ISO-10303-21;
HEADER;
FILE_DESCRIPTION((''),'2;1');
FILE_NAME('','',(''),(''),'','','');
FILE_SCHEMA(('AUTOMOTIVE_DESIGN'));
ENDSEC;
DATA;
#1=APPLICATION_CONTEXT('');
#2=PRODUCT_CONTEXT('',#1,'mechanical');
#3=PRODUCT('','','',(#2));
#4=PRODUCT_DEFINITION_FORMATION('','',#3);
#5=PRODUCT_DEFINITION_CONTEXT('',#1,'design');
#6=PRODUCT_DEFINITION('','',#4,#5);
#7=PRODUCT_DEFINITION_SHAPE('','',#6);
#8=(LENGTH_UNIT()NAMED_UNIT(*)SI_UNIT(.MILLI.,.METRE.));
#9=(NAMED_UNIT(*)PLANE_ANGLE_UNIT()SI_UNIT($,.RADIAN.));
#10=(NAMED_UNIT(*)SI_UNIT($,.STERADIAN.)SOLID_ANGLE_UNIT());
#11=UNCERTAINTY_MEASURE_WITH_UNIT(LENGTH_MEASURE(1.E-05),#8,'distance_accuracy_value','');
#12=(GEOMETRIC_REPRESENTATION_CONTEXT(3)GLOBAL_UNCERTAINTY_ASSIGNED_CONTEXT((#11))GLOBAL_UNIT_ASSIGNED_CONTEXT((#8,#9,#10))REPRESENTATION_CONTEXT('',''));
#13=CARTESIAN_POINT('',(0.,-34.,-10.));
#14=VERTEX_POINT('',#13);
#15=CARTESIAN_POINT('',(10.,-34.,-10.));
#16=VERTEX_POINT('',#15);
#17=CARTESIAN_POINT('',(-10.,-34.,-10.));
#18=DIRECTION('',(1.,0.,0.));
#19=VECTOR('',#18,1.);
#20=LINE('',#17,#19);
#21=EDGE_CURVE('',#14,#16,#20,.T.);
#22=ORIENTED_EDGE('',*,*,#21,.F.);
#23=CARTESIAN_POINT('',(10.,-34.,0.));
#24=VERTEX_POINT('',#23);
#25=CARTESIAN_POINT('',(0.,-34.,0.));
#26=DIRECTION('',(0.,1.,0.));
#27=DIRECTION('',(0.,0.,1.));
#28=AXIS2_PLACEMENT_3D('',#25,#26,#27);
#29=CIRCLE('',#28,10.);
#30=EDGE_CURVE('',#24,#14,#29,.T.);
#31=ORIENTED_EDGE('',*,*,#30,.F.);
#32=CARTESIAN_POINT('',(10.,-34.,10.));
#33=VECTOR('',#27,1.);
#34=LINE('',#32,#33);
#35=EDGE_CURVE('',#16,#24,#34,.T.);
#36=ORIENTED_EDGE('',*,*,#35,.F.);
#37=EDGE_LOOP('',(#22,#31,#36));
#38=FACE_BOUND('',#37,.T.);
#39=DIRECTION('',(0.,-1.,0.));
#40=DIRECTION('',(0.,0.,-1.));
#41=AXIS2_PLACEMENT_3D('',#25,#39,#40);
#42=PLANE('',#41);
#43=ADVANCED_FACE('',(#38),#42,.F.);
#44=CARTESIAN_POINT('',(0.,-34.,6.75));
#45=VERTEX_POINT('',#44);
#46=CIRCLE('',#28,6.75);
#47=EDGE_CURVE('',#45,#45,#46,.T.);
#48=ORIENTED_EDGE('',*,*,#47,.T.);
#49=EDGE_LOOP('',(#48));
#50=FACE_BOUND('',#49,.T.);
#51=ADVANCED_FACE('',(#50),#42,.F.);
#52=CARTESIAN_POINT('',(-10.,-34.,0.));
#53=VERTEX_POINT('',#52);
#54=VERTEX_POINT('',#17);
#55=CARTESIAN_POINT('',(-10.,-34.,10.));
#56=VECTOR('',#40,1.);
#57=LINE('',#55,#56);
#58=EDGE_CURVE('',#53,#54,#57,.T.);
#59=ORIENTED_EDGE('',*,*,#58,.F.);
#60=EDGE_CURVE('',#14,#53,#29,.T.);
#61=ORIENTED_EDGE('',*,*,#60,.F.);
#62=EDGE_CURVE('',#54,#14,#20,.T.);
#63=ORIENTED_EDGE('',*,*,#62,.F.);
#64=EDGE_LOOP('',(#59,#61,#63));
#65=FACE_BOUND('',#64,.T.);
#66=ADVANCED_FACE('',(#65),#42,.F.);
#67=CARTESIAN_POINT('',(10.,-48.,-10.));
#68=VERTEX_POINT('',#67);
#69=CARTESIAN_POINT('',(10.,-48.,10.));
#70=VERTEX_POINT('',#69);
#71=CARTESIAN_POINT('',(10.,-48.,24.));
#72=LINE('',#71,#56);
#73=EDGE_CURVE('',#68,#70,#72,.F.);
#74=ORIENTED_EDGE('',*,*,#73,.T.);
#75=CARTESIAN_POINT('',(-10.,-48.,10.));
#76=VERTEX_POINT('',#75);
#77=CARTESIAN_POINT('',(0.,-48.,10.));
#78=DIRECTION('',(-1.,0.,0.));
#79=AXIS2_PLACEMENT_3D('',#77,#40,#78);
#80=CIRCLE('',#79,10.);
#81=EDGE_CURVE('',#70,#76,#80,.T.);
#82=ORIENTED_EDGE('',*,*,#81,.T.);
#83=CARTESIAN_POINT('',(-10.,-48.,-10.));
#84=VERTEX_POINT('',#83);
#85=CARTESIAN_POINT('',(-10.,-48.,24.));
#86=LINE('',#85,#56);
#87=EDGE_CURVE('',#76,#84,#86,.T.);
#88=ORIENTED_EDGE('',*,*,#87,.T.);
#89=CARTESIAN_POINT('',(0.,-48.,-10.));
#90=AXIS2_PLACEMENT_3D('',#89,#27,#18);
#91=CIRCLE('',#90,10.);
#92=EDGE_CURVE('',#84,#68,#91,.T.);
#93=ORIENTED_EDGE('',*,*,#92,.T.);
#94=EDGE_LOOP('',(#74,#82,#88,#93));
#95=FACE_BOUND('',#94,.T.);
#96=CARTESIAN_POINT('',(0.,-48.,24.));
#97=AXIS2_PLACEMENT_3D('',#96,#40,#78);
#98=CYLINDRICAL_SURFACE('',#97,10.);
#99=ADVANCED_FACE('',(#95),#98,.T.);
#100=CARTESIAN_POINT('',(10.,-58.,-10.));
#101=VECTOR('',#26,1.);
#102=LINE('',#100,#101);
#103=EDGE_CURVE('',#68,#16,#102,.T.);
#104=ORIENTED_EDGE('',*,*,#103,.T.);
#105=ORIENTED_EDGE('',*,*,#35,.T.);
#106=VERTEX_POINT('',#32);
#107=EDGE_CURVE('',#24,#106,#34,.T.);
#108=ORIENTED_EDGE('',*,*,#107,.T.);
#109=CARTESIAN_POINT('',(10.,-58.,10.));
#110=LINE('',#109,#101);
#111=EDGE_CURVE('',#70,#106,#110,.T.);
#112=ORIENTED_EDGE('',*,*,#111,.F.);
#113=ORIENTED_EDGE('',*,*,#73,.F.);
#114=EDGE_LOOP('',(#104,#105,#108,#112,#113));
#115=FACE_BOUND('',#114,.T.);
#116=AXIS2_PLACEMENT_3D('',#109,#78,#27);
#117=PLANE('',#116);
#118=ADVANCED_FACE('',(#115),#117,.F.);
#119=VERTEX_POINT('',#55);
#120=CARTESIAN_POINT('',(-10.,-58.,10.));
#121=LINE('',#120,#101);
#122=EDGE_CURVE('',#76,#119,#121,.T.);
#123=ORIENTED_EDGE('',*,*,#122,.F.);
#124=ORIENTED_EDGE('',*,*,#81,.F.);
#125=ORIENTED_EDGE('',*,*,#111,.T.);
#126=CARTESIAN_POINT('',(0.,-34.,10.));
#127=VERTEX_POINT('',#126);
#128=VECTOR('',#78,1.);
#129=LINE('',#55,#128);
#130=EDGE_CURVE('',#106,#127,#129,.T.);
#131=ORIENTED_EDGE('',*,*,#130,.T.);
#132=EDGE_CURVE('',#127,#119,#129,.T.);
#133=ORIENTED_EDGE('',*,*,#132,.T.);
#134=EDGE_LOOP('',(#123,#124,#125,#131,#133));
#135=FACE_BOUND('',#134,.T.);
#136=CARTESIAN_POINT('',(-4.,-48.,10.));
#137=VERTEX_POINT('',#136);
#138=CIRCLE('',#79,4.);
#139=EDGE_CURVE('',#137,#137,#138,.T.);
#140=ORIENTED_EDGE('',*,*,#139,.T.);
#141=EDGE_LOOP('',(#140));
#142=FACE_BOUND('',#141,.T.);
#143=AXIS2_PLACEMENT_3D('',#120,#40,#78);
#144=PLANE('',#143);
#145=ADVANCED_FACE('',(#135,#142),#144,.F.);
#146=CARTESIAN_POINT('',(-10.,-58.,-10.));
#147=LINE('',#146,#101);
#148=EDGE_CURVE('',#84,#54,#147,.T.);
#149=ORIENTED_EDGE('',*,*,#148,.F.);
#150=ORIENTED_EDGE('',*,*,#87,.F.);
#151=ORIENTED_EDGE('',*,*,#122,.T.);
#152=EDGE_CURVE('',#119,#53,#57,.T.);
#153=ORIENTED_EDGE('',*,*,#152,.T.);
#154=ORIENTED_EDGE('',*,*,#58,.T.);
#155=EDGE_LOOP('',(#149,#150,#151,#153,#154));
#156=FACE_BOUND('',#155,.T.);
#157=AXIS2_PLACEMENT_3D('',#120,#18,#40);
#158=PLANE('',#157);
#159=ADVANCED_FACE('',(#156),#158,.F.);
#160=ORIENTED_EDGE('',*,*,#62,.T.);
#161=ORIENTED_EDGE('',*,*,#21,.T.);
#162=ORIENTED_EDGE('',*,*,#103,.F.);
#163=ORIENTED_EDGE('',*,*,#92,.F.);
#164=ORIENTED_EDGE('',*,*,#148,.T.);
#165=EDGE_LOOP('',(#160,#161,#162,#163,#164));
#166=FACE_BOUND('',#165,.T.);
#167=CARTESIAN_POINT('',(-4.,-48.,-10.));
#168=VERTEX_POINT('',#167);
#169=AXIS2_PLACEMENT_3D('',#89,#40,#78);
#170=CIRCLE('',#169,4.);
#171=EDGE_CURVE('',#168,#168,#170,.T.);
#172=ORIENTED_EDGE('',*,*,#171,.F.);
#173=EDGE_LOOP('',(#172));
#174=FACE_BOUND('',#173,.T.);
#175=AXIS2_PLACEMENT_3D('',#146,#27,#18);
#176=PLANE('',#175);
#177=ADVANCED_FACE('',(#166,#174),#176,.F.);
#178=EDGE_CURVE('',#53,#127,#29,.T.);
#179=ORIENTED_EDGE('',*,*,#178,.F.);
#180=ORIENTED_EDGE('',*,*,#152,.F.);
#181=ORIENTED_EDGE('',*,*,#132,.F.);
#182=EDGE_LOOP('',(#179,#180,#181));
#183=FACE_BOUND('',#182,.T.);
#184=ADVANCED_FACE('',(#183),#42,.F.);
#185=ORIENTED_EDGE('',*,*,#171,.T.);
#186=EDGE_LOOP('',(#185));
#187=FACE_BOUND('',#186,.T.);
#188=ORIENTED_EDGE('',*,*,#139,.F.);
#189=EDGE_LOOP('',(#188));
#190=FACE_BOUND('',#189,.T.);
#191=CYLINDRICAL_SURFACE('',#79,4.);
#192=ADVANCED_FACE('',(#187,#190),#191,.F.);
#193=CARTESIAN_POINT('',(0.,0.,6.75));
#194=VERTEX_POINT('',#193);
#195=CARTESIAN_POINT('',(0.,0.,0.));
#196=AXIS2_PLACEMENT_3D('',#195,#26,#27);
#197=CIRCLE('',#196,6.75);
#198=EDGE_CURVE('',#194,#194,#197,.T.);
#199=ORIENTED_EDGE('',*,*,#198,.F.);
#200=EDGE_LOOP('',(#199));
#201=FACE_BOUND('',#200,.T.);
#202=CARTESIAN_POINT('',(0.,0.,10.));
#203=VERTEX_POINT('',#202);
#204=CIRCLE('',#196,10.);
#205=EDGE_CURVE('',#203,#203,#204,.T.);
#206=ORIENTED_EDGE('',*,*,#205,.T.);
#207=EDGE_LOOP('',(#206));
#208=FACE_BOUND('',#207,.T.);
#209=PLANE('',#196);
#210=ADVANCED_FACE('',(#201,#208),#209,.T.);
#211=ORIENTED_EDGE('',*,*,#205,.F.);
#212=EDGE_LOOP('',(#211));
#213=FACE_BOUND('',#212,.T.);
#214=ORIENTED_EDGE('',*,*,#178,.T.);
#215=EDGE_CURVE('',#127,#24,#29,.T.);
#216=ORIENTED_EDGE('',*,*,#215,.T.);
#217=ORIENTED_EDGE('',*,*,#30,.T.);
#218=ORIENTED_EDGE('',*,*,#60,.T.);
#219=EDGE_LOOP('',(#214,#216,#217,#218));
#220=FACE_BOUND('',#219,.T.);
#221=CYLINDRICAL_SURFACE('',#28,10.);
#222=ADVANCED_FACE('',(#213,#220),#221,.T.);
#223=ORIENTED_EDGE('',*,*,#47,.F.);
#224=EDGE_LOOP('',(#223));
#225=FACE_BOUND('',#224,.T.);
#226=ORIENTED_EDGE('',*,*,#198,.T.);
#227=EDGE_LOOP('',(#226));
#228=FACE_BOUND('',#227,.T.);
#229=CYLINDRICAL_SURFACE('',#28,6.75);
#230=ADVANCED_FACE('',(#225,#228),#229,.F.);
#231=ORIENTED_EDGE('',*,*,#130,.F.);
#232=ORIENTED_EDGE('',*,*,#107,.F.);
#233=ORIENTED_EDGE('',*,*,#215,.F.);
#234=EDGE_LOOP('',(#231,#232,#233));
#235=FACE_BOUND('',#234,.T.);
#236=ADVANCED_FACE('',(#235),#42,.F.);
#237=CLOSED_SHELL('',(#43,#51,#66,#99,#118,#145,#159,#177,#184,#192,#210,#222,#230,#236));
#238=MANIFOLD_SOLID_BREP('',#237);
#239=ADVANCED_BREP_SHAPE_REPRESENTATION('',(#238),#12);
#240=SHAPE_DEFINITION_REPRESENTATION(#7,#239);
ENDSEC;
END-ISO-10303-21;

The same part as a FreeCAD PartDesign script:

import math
import FreeCAD as App
import Part
import Sketcher

V = App.Vector

doc = App.newDocument("Part")
body = doc.addObject("PartDesign::Body", "Body")

# Sketch on XZ plane
sketch1 = body.newObject("Sketcher::SketchObject", "Sketch")
sketch1.AttachmentSupport = (doc.getObject("XZ_Plane"), [""])
sketch1.MapMode = "FlatFace"
sketch1.addGeometry(Part.Circle(V(0, 0, 0), V(0, 0, 1), 10), False)
sketch1.addGeometry(Part.Circle(V(0, 0, 0), V(0, 0, 1), 6.75), False)
sketch1.addConstraint(Sketcher.Constraint("Coincident", 0, 3, -1, 1))
sketch1.addConstraint(Sketcher.Constraint("Coincident", 1, 3, -1, 1))
sketch1.addConstraint(Sketcher.Constraint("Diameter", 0, 20.0))
sketch1.addConstraint(Sketcher.Constraint("Diameter", 1, 13.5))
pad1 = body.newObject("PartDesign::Pad", "Pad")
pad1.Profile = sketch1
pad1.Length = 34

# Sketch on XZ plane
sketch2 = body.newObject("Sketcher::SketchObject", "Sketch001")
sketch2.AttachmentSupport = (doc.getObject("XZ_Plane"), [""])
sketch2.MapMode = "FlatFace"
sketch2.AttachmentOffset = App.Placement(V(0, 0, 34), App.Rotation())
sketch2.addGeometry(Part.LineSegment(V(-10, 10, 0), V(-10, -10, 0)), False)
sketch2.addGeometry(Part.LineSegment(V(-10, -10, 0), V(10, -10, 0)), False)
sketch2.addGeometry(Part.LineSegment(V(10, -10, 0), V(10, 10, 0)), False)
sketch2.addGeometry(Part.LineSegment(V(10, 10, 0), V(-10, 10, 0)), False)
sketch2.addConstraint(Sketcher.Constraint("Coincident", 0, 2, 1, 1))
sketch2.addConstraint(Sketcher.Constraint("Coincident", 1, 2, 2, 1))
sketch2.addConstraint(Sketcher.Constraint("Coincident", 2, 2, 3, 1))
sketch2.addConstraint(Sketcher.Constraint("Coincident", 3, 2, 0, 1))
sketch2.addConstraint(Sketcher.Constraint("Vertical", 0))
sketch2.addConstraint(Sketcher.Constraint("Horizontal", 1))
sketch2.addConstraint(Sketcher.Constraint("Vertical", 2))
sketch2.addConstraint(Sketcher.Constraint("Horizontal", 3))
sketch2.addConstraint(Sketcher.Constraint("Symmetric", 0, 2, 2, 2, -1, 1))
sketch2.addConstraint(Sketcher.Constraint("Equal", 3, 0))
sketch2.addConstraint(Sketcher.Constraint("DistanceX", 1, 1, 1, 2, 20.0))
pad2 = body.newObject("PartDesign::Pad", "Pad001")
pad2.Profile = sketch2
pad2.Length = 24

# Sketch on XY plane
sketch3 = body.newObject("Sketcher::SketchObject", "Sketch002")
sketch3.AttachmentSupport = (doc.getObject("XY_Plane"), [""])
sketch3.MapMode = "FlatFace"
sketch3.addGeometry(Part.LineSegment(V(-10, -58, 0), V(0, -58, 0)), False)
sketch3.addGeometry(Part.ArcOfCircle(Part.Circle(V(0, -48, 0), V(0, 0, 1), 10), math.radians(180), math.radians(270)), False)
sketch3.addGeometry(Part.LineSegment(V(-10, -48, 0), V(-10, -58, 0)), False)
sketch3.addConstraint(Sketcher.Constraint("Tangent", 0, 2, 1, 2))
sketch3.addConstraint(Sketcher.Constraint("Tangent", 1, 1, 2, 1))
sketch3.addConstraint(Sketcher.Constraint("Coincident", 2, 2, 0, 1))
sketch3.addConstraint(Sketcher.Constraint("Horizontal", 0))
sketch3.addConstraint(Sketcher.Constraint("Vertical", 2))
sketch3.addConstraint(Sketcher.Constraint("PointOnObject", 1, 3, -2))
sketch3.addConstraint(Sketcher.Constraint("Radius", 1, 10.0))
sketch3.addConstraint(Sketcher.Constraint("DistanceY", 1, 3, -1, 1, 48.0))
pocket1 = body.newObject("PartDesign::Pocket", "Pocket")
pocket1.Profile = sketch3
pocket1.Length = 48
pocket1.Midplane = True
doc.recompute()

mirrored = body.newObject("PartDesign::Mirrored", "Mirrored")
mirrored.Originals = [pocket1]
mirrored.MirrorPlane = (doc.getObject("YZ_Plane"), [""])
body.Tip = mirrored

# Sketch on XY plane
sketch4 = body.newObject("Sketcher::SketchObject", "Sketch003")
sketch4.AttachmentSupport = (doc.getObject("XY_Plane"), [""])
sketch4.MapMode = "FlatFace"
sketch4.AttachmentOffset = App.Placement(V(0, 0, -10), App.Rotation())
sketch4.addGeometry(Part.Circle(V(0, -48, 0), V(0, 0, 1), 4), False)
sketch4.addConstraint(Sketcher.Constraint("PointOnObject", 0, 3, -2))
sketch4.addConstraint(Sketcher.Constraint("Diameter", 0, 8.0))
sketch4.addConstraint(Sketcher.Constraint("DistanceY", 0, 3, -1, 1, 48.0))
pocket2 = body.newObject("PartDesign::Pocket", "Pocket001")
pocket2.Profile = sketch4
pocket2.Type = "ThroughAll"
pocket2.Reversed = True

doc.recompute()
